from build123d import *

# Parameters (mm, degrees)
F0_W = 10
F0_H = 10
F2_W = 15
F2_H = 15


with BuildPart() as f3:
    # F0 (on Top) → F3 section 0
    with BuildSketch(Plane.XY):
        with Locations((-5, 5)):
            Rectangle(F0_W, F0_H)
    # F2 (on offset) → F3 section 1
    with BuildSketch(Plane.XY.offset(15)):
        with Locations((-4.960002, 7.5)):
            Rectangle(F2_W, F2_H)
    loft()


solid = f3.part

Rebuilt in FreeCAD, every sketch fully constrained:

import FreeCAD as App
import Part
import Sketcher
from FreeCAD import Vector
Q = App.Units.Quantity

doc = App.newDocument("Part")
body = doc.addObject("PartDesign::Body", "Body")

# Sketch on XY plane
sketch1 = doc.addObject("Sketcher::SketchObject", "Sketch")
body.addObject(sketch1)
sketch1.AttachmentSupport = (doc.XY_Plane, [""])
sketch1.MapMode = "FlatFace"
sketch1.addGeometry([
    Part.LineSegment(Vector(-10, 10, 0), Vector(-10, 0, 0)),
    Part.LineSegment(Vector(-10, 0, 0), Vector(0, 0, 0)),
    Part.LineSegment(Vector(0, 0, 0), Vector(0, 10, 0)),
    Part.LineSegment(Vector(0, 10, 0), Vector(-10, 10, 0)),
], False)
sketch1.addConstraint([
    Sketcher.Constraint("Coincident", 0, 2, 1, 1),
    Sketcher.Constraint("Coincident", 1, 2, 2, 1),
    Sketcher.Constraint("Coincident", 2, 2, 3, 1),
    Sketcher.Constraint("Coincident", 3, 2, 0, 1),
    Sketcher.Constraint("Vertical", 0),
    Sketcher.Constraint("Horizontal", 1),
    Sketcher.Constraint("Vertical", 2),
    Sketcher.Constraint("Horizontal", 3),
    Sketcher.Constraint("Coincident", 1, 2, -1, 1),
    Sketcher.Constraint("Equal", 3, 0),
    Sketcher.Constraint("DistanceX", 1, 1, 1, 2, Q("10 mm")),
])

# Sketch on XY plane
sketch2 = doc.addObject("Sketcher::SketchObject", "Sketch001")
body.addObject(sketch2)
sketch2.AttachmentSupport = (doc.XY_Plane, [""])
sketch2.MapMode = "FlatFace"
sketch2.AttachmentOffset = App.Placement(Vector(0, 0, 15), App.Rotation())
sketch2.addGeometry([
    Part.LineSegment(Vector(-12, 15, 0), Vector(-12, 0, 0)),
    Part.LineSegment(Vector(-12, 0, 0), Vector(3, 0, 0)),
    Part.LineSegment(Vector(3, 0, 0), Vector(3, 15, 0)),
    Part.LineSegment(Vector(3, 15, 0), Vector(-12, 15, 0)),
], False)
sketch2.addConstraint([
    Sketcher.Constraint("Coincident", 0, 2, 1, 1),
    Sketcher.Constraint("Coincident", 1, 2, 2, 1),
    Sketcher.Constraint("Coincident", 2, 2, 3, 1),
    Sketcher.Constraint("Coincident", 3, 2, 0, 1),
    Sketcher.Constraint("Vertical", 0),
    Sketcher.Constraint("Horizontal", 1),
    Sketcher.Constraint("Vertical", 2),
    Sketcher.Constraint("Horizontal", 3),
    Sketcher.Constraint("PointOnObject", 0, 2, -1),
    Sketcher.Constraint("Equal", 3, 0),
    Sketcher.Constraint("DistanceX", 1, 1, 1, 2, Q("15 mm")),
    Sketcher.Constraint("DistanceX", 0, 2, -1, 1, Q("12.460002 mm")),
])

additiveloft = doc.addObject("PartDesign::AdditiveLoft", "AdditiveLoft")
body.addObject(additiveloft)
additiveloft.Profile = sketch1
additiveloft.Sections = [sketch2]

doc.recompute()
